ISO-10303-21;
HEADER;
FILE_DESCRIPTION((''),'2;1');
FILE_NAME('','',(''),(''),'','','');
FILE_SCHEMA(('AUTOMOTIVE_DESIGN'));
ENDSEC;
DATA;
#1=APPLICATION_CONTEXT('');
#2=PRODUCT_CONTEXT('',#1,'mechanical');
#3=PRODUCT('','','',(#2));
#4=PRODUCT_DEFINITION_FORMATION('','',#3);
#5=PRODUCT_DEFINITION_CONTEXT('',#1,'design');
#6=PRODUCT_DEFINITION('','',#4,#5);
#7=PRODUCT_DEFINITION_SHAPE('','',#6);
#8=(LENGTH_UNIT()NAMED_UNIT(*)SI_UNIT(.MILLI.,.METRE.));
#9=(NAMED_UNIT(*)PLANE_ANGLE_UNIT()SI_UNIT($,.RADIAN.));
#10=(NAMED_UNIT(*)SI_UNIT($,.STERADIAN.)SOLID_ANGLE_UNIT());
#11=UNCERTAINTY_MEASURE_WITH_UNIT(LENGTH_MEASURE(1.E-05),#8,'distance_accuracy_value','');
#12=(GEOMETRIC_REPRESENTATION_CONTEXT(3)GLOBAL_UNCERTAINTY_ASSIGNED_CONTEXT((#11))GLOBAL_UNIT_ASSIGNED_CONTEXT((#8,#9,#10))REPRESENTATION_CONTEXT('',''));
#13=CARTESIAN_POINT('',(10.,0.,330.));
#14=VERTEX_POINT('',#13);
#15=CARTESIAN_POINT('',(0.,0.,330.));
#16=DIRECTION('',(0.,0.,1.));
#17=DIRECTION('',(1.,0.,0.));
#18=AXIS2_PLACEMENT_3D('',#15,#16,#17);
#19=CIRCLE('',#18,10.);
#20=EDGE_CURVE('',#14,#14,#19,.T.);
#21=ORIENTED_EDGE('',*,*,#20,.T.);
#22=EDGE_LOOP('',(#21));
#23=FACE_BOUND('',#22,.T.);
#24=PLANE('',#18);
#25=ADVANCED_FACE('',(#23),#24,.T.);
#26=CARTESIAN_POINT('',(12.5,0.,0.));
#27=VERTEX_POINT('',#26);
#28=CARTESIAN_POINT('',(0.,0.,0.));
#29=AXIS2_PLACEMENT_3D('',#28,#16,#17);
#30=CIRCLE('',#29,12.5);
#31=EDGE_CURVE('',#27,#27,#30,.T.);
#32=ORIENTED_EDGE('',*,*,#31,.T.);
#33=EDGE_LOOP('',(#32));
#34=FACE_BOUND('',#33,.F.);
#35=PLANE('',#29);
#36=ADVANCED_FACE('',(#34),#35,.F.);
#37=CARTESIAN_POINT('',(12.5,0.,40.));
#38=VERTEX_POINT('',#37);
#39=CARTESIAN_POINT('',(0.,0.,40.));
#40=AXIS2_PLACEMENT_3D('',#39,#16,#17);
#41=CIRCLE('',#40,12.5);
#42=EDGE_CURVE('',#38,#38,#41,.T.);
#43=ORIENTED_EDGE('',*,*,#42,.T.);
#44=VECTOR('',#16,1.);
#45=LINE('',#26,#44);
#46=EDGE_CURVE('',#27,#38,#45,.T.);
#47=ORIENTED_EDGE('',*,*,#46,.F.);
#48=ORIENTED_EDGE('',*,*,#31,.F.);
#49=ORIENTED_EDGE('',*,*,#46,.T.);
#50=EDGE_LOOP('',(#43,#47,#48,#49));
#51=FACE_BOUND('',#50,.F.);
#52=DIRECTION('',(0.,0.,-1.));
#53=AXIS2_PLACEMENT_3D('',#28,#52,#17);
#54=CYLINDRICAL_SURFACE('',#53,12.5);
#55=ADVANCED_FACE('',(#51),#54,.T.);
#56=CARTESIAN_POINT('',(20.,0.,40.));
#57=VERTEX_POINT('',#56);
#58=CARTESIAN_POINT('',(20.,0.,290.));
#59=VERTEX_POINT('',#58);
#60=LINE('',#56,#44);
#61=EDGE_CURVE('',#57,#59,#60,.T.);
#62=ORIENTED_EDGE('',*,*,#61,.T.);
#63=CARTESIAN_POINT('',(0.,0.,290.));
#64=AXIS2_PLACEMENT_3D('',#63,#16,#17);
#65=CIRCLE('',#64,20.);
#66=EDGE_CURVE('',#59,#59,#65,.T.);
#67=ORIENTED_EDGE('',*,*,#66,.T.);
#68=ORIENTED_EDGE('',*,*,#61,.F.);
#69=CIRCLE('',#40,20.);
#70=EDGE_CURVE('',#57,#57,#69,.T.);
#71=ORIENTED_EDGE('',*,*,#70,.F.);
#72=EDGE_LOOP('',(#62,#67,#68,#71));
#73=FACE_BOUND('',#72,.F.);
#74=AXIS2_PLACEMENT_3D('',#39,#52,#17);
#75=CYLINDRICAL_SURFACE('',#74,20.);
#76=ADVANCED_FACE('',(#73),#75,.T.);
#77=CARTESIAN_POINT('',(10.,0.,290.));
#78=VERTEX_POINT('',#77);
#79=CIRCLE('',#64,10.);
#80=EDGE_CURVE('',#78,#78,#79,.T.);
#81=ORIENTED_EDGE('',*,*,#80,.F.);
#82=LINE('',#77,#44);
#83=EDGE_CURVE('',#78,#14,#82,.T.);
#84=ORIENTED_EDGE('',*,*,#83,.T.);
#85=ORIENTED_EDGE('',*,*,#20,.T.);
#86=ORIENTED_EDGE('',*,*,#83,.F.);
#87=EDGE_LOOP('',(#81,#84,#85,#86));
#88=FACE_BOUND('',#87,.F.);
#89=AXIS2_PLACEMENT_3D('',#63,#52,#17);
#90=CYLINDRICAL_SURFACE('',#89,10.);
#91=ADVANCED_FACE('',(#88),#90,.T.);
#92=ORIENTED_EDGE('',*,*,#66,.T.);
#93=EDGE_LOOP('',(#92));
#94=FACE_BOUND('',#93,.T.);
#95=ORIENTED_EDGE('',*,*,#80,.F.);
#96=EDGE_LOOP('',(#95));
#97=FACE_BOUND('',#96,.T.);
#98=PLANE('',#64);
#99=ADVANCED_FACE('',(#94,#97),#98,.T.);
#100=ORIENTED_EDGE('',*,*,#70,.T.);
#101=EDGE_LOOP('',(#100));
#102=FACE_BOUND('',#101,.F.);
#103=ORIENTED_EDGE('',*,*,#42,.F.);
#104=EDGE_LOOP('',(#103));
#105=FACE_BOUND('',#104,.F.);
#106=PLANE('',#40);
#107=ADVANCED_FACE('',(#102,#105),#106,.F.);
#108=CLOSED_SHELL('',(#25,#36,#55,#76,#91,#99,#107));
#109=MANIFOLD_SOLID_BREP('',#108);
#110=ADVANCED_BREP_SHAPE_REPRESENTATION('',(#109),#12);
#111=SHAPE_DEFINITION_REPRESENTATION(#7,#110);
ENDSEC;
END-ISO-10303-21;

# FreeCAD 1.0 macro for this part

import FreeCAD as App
import Part
import Sketcher
from FreeCAD import Vector
Q = App.Units.Quantity

doc = App.newDocument("Part")
body = doc.addObject("PartDesign::Body", "Body")

sketch1 = body.newObject("Sketcher::SketchObject", "Sketch")
sketch1.AttachmentSupport = (doc.getObject("XY_Plane"), [""])
sketch1.MapMode = "FlatFace"
sketch1.addGeometry(Part.Circle(Vector(0, 0, 0), Vector(0, 0, 1), 12), False)
sketch1.addConstraint(Sketcher.Constraint("Coincident", 0, 3, -1, 1))
sketch1.addConstraint(Sketcher.Constraint("Diameter", 0, Q("25 mm")))
pad1 = body.newObject("PartDesign::Pad", "Pad")
pad1.Profile = sketch1
pad1.Length = 40

sketch2 = body.newObject("Sketcher::SketchObject", "Sketch001")
sketch2.AttachmentSupport = (doc.getObject("XY_Plane"), [""])
sketch2.MapMode = "FlatFace"
sketch2.AttachmentOffset = App.Placement(Vector(0, 0, 40), App.Rotation())
sketch2.addGeometry(Part.Circle(Vector(0, 0, 0), Vector(0, 0, 1), 20), False)
sketch2.addConstraint(Sketcher.Constraint("Coincident", 0, 3, -1, 1))
sketch2.addConstraint(Sketcher.Constraint("Diameter", 0, Q("40 mm")))
pad2 = body.newObject("PartDesign::Pad", "Pad001")
pad2.Profile = sketch2
pad2.Length = 250

sketch3 = body.newObject("Sketcher::SketchObject", "Sketch002")
sketch3.AttachmentSupport = (doc.getObject("XY_Plane"), [""])
sketch3.MapMode = "FlatFace"
sketch3.AttachmentOffset = App.Placement(Vector(0, 0, 290), App.Rotation())
sketch3.addGeometry(Part.Circle(Vector(0, 0, 0), Vector(0, 0, 1), 10), False)
sketch3.addConstraint(Sketcher.Constraint("Coincident", 0, 3, -1, 1))
sketch3.addConstraint(Sketcher.Constraint("Diameter", 0, Q("20 mm")))
pad3 = body.newObject("PartDesign::Pad", "Pad002")
pad3.Profile = sketch3
pad3.Length = 40

doc.recompute()
